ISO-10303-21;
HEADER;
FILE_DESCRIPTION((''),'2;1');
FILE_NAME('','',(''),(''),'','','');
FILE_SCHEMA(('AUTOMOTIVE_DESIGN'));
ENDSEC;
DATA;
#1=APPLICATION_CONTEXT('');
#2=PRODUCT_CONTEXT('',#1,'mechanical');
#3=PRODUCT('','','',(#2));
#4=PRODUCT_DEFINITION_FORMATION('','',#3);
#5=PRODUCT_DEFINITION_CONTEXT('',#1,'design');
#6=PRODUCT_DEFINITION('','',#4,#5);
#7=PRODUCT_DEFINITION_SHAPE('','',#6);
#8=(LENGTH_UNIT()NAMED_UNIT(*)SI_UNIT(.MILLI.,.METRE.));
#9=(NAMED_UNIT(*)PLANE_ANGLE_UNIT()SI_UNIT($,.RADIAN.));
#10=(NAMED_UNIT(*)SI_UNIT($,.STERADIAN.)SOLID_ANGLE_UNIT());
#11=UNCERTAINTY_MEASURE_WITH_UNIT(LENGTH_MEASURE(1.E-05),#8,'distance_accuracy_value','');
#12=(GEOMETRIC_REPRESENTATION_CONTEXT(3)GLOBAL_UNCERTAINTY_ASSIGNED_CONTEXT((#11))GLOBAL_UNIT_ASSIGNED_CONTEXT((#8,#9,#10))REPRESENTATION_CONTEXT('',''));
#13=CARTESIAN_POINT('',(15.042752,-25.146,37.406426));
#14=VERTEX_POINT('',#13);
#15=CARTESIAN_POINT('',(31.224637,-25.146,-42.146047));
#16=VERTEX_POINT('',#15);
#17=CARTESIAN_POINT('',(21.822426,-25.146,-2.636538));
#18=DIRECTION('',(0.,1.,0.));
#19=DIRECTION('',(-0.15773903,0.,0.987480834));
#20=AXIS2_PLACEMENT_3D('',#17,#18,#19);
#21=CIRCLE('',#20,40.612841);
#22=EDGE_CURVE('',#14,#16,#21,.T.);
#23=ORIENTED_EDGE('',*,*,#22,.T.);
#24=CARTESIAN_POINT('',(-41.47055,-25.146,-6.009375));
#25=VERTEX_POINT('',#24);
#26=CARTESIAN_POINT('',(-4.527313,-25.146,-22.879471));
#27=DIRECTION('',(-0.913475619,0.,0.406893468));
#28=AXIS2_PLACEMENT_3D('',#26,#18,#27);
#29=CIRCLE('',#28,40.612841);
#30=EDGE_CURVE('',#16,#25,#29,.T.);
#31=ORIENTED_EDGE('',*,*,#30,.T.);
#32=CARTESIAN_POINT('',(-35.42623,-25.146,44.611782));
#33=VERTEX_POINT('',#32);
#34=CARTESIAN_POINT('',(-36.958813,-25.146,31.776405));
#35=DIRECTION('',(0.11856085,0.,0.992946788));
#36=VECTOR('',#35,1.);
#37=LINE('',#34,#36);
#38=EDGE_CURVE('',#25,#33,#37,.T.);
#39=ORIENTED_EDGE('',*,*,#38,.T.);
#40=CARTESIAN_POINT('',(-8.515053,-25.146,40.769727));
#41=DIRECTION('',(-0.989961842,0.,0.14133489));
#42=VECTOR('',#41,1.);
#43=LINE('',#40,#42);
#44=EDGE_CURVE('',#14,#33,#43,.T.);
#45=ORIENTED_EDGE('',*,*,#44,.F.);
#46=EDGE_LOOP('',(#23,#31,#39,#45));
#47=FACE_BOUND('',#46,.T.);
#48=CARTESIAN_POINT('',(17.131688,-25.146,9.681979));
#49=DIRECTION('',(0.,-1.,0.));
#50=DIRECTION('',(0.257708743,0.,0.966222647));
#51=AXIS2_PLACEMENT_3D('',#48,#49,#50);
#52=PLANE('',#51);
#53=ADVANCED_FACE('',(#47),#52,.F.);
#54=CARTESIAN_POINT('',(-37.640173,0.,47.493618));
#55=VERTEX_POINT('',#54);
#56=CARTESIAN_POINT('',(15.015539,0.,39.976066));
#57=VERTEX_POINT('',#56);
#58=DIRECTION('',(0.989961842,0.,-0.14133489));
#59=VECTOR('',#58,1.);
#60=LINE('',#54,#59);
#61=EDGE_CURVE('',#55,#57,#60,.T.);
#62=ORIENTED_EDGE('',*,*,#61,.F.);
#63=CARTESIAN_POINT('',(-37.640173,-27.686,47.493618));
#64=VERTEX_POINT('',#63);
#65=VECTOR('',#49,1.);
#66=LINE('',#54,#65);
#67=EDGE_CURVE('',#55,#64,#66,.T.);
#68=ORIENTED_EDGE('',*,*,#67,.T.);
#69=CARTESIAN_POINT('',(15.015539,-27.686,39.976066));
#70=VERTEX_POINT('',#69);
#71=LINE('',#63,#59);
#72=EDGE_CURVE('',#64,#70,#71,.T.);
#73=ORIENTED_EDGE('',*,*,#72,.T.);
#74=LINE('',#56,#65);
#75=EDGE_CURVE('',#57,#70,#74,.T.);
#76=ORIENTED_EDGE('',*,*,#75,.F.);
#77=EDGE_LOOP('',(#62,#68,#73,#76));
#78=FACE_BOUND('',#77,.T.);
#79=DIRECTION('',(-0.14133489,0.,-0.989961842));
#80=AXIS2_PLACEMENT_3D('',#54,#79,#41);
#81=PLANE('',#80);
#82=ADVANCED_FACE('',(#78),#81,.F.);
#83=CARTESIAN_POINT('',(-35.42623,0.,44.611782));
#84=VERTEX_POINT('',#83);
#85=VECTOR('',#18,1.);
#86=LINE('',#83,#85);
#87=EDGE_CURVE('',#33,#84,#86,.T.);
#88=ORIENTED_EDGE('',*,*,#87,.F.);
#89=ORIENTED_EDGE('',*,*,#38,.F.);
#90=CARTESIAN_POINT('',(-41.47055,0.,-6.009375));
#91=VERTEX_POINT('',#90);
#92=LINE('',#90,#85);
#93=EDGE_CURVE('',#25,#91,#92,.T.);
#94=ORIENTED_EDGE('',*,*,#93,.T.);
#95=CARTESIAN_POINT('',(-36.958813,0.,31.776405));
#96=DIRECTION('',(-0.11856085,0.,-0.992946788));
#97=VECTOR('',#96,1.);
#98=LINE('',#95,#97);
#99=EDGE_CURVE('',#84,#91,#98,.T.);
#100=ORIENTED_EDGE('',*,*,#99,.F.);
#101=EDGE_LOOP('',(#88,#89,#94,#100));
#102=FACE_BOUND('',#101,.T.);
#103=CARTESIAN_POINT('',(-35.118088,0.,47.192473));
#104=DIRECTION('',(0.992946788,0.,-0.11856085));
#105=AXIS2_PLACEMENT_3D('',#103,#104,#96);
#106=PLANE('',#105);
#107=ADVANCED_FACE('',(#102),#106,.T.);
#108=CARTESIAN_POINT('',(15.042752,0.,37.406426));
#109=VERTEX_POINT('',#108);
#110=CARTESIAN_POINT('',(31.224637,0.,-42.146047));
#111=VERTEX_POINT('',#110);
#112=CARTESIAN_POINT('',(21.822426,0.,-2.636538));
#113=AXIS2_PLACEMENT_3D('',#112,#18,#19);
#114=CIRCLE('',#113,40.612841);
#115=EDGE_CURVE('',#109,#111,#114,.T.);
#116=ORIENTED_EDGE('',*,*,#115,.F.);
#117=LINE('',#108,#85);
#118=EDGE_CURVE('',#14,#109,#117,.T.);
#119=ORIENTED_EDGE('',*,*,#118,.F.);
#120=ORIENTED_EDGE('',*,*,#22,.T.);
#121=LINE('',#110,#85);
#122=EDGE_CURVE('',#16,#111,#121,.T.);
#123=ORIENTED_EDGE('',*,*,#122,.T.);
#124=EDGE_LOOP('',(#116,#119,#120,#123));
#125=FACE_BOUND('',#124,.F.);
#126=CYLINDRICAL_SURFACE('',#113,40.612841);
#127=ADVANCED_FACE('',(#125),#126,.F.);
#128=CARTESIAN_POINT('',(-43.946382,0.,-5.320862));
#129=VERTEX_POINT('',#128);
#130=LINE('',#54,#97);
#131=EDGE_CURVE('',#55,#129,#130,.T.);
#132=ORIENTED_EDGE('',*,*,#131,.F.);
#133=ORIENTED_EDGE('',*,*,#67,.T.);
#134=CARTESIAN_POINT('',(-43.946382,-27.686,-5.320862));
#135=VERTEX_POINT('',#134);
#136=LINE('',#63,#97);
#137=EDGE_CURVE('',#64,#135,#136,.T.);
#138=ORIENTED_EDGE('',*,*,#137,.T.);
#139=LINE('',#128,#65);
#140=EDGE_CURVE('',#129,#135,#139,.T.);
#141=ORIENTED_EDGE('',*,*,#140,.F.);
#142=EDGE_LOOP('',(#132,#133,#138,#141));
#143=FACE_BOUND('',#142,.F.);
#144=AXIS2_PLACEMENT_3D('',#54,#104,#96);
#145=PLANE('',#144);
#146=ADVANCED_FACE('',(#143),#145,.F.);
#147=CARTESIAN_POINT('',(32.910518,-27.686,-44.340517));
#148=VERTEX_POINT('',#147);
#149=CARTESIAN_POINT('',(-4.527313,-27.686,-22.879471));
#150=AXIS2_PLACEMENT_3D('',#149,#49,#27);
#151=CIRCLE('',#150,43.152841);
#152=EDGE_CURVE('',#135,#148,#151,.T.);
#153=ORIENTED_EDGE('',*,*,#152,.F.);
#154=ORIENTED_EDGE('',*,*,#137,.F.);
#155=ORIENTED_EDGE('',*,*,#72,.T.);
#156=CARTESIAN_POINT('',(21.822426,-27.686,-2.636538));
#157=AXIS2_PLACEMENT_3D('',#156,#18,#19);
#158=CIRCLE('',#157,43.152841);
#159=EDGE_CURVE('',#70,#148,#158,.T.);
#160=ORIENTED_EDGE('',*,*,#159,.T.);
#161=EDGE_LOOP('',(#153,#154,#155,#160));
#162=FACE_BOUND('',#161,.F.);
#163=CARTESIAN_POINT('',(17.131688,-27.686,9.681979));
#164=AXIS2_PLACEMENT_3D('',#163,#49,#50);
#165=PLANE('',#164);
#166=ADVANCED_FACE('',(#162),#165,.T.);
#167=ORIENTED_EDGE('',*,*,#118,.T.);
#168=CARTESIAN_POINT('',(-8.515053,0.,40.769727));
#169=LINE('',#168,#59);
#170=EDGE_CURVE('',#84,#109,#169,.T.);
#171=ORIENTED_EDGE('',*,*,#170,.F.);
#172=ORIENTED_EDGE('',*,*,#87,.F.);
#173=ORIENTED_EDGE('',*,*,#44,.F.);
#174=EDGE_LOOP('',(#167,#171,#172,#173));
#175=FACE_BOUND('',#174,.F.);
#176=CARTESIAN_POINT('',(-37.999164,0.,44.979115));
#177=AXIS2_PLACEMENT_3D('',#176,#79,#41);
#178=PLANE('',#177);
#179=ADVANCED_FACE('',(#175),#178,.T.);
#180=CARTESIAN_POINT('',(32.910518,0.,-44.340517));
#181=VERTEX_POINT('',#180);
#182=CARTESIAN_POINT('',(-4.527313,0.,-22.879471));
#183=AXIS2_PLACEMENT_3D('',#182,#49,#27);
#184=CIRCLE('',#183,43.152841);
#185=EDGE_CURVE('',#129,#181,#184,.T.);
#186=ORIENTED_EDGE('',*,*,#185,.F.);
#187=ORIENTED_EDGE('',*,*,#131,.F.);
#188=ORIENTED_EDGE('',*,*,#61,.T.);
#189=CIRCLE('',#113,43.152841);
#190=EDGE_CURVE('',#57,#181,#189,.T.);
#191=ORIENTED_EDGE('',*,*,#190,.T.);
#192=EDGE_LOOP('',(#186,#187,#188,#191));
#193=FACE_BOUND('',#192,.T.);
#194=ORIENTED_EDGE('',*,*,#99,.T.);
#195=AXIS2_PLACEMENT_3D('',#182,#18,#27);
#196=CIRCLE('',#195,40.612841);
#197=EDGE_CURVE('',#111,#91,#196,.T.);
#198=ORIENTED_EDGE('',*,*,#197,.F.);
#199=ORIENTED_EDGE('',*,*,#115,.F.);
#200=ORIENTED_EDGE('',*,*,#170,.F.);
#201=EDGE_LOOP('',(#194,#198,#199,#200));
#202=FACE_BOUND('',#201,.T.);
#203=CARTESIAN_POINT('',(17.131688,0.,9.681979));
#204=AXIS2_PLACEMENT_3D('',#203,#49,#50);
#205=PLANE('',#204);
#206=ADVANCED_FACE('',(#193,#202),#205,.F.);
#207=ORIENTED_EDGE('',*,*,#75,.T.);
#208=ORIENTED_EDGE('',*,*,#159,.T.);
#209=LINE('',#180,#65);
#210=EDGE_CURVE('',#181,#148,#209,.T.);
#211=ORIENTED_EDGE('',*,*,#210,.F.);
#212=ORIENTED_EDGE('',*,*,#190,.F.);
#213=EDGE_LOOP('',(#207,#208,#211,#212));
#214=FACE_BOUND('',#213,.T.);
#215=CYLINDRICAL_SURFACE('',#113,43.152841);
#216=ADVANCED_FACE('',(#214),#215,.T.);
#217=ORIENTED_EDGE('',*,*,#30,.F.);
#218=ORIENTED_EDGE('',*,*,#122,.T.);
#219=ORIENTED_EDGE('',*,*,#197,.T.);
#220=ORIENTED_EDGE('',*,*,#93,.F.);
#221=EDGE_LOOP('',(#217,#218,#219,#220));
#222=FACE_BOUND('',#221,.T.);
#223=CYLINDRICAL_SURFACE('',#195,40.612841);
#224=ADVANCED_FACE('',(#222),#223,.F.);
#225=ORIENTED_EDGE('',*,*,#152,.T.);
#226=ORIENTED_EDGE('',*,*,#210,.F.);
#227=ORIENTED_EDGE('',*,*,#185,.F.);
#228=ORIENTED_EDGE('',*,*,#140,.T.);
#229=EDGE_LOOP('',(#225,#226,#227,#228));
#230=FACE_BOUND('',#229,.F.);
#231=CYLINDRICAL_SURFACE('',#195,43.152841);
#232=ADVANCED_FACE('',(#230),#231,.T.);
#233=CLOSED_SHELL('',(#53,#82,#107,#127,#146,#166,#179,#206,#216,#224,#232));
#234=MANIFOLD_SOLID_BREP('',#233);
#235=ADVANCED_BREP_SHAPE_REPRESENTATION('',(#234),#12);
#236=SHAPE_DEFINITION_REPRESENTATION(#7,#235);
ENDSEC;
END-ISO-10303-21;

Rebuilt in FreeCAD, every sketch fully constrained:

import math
import FreeCAD as App
import Part
import Sketcher
Q = App.Units.Quantity


def faces_at(feature, points):
    """Names of the faces that lie closest to the given points."""
    faces = feature.Shape.Faces
    near = lambda p: min(range(len(faces)), key=lambda i: faces[i].distToShape(Part.Vertex(*p))[0])
    return sorted({f"Face{near(p) + 1}" for p in points})

doc = App.newDocument("Part")
params = doc.addObject("Spreadsheet::Sheet", "Params")
for row, (alias, value) in enumerate([
    ("pad1_length", "1.09 in"),
    ("thickness_wall", "0.1 in"),
], start=1):
    params.set(f"A{row}", alias)
    params.set(f"B{row}", "=" + value)
    params.setAlias(f"B{row}", alias)

body = doc.addObject("PartDesign::Body", "Body")

# Sketch on XZ plane
sketch1 = doc.addObject("Sketcher::SketchObject", "Sketch")
body.addObject(sketch1)
sketch1.AttachmentSupport = (doc.XZ_Plane, [""])
sketch1.MapMode = "FlatFace"
sketch1.addGeometry(Part.LineSegment(App.Vector(33, -44, 0), App.Vector(-38, 47, 0)), False)
sketch1.addGeometry(Part.LineSegment(App.Vector(-38, 47, 0), App.Vector(-44, -5, 0)), False)
sketch1.addGeometry(Part.ArcOfCircle(Part.Circle(App.Vector(-5, -23, 0), App.Vector(0, 0, 1), 43), math.radians(156), math.radians(330)), False)
sketch1.addConstraint(Sketcher.Constraint("Coincident", 0, 2, 1, 1))
sketch1.addConstraint(Sketcher.Constraint("Coincident", 1, 2, 2, 1))
sketch1.addConstraint(Sketcher.Constraint("Coincident", 2, 2, 0, 1))
sketch1.addConstraint(Sketcher.Constraint("Radius", 2, Q("43.152841 mm")))
sketch1.addConstraint(Sketcher.Constraint("DistanceX", 1, 2, 2, 2, Q("76.8569 mm")))
sketch1.addConstraint(Sketcher.Constraint("DistanceY", 2, 3, -1, 1, Q("22.879471 mm")))
sketch1.addConstraint(Sketcher.Constraint("DistanceX", 1, 2, -1, 1, Q("43.946382 mm")))
sketch1.addConstraint(Sketcher.Constraint("DistanceY", 1, 2, -1, 1, Q("5.320862 mm")))
sketch1.addConstraint(Sketcher.Constraint("DistanceX", 0, 2, 2, 3, Q("33.11286 mm")))
sketch1.addConstraint(Sketcher.Constraint("DistanceY", 2, 3, 0, 2, Q("70.373089 mm")))
pad1 = doc.addObject("PartDesign::Pad", "Pad")
body.addObject(pad1)
pad1.Profile = sketch1
pad1.setExpression("Length", "Params.pad1_length")
body2 = doc.addObject("PartDesign::Body", "Body001")
doc.recompute()

body2.BaseFeature = body
doc.recompute()

mirroring = doc.addObject("Part::Mirroring", "Mirroring")
mirroring.Source = body
mirroring.Base = App.Vector(-2.364827, -13.843, 1.57655)
mirroring.Normal = App.Vector(0.793003387, 0, 0.609217226)
body3 = doc.addObject("PartDesign::Body", "Body002")
body3.BaseFeature = mirroring
boolean = doc.addObject("PartDesign::Boolean", "Boolean")
body2.addObject(boolean)
boolean.Type = "Fuse"
boolean.addObjects([body3])
doc.recompute()

thickness = doc.addObject("PartDesign::Thickness", "Thickness")
body2.addObject(thickness)
thickness.Base = (boolean, faces_at(boolean, [(5.277, 0, -11.859)]))
thickness.setExpression("Value", "Params.thickness_wall")
thickness.Reversed = True
thickness.Join = "Intersection"
mirroring.Visibility = False

doc.recompute()
